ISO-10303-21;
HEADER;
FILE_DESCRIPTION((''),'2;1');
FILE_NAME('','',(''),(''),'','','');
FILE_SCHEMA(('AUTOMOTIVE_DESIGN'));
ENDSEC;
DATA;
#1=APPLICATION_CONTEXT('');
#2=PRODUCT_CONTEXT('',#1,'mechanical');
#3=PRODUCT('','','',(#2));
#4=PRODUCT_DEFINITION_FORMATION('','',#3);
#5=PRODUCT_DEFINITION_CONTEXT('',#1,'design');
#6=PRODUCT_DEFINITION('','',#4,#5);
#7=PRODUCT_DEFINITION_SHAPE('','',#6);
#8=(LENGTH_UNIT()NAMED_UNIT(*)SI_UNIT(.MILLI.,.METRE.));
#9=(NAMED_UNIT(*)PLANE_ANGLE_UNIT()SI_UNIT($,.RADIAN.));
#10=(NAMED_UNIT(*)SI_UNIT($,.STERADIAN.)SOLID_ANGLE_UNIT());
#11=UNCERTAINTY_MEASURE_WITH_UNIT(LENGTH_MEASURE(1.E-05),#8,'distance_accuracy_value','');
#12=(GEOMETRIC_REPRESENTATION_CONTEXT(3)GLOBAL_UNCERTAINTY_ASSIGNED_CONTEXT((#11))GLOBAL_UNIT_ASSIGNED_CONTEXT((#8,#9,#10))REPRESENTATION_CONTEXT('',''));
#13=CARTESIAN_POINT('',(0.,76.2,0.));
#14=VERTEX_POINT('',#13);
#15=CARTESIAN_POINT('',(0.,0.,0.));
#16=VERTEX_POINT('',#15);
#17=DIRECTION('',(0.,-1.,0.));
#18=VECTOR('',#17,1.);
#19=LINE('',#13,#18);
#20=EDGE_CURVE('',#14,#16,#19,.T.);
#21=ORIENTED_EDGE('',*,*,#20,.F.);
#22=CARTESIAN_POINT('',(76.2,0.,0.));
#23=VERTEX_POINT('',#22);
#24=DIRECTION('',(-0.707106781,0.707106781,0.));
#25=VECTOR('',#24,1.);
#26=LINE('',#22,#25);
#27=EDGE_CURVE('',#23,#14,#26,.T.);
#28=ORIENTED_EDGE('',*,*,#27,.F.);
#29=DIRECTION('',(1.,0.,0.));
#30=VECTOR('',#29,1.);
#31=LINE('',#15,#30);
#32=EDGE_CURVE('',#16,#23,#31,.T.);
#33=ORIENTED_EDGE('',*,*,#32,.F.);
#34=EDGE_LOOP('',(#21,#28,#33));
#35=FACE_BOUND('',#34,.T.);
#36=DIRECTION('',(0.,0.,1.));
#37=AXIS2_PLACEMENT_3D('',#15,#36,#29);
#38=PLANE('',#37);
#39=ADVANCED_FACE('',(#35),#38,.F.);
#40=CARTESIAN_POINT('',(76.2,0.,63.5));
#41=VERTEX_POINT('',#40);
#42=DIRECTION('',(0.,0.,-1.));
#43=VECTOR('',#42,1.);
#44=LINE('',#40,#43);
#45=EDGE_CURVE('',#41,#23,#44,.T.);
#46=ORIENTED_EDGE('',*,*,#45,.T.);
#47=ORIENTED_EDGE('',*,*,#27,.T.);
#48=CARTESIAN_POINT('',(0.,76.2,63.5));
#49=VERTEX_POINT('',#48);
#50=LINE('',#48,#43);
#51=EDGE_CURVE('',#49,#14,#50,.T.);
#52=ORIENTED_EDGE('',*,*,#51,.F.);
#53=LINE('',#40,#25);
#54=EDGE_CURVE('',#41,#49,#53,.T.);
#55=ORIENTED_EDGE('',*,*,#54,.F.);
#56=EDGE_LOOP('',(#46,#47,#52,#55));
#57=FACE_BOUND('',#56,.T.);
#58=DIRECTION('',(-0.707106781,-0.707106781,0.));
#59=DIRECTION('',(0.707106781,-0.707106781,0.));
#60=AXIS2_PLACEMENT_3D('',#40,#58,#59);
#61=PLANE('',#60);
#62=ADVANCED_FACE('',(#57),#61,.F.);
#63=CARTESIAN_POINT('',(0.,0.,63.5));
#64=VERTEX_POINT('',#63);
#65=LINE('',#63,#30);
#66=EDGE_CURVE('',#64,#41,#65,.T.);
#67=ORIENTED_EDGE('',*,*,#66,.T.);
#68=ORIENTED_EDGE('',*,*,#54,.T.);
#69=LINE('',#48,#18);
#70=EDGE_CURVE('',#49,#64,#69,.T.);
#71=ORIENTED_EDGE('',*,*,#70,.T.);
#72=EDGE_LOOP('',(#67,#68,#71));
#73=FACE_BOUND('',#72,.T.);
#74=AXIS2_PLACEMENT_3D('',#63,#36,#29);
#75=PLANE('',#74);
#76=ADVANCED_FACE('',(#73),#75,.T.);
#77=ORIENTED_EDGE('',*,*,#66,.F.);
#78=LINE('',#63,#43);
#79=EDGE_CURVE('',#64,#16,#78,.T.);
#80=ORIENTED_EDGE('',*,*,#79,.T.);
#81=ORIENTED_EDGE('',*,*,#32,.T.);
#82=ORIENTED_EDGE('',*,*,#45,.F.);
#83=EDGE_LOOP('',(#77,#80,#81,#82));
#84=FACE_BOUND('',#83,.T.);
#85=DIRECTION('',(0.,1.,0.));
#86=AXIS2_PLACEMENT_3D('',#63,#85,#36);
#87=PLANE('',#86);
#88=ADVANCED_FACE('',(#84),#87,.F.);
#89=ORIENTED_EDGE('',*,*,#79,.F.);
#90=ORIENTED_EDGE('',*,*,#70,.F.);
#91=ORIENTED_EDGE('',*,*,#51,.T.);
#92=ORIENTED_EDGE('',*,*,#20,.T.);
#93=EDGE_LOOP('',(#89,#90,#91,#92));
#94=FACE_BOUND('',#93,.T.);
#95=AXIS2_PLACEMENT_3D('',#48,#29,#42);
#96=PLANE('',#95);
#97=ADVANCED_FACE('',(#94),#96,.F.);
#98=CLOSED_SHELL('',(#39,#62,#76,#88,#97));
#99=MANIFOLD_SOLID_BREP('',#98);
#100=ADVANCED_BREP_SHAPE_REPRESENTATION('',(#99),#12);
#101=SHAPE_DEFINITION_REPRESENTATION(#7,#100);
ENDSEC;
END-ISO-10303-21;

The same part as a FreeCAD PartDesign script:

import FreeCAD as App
import Part
import Sketcher
from FreeCAD import Vector
Q = App.Units.Quantity

doc = App.newDocument("Part")
body = doc.addObject("PartDesign::Body", "Body")

# Sketch on XY plane
sketch1 = doc.addObject("Sketcher::SketchObject", "Sketch")
body.addObject(sketch1)
sketch1.AttachmentSupport = (doc.XY_Plane, [""])
sketch1.MapMode = "FlatFace"
sketch1.addGeometry([
    Part.LineSegment(Vector(0, 0, 0), Vector(76, 0, 0)),
    Part.LineSegment(Vector(76, 0, 0), Vector(0, 76, 0)),
    Part.LineSegment(Vector(0, 76, 0), Vector(0, 0, 0)),
], False)
sketch1.addConstraint([
    Sketcher.Constraint("Coincident", 0, 2, 1, 1),
    Sketcher.Constraint("Coincident", 1, 2, 2, 1),
    Sketcher.Constraint("Coincident", 2, 2, 0, 1),
    Sketcher.Constraint("Horizontal", 0),
    Sketcher.Constraint("Vertical", 2),
    Sketcher.Constraint("Coincident", 2, 2, -1, 1),
    Sketcher.Constraint("Equal", 0, 2),
    Sketcher.Constraint("DistanceX", 0, 1, 0, 2, Q("3 in")),
])
pad1 = doc.addObject("PartDesign::Pad", "Pad")
body.addObject(pad1)
pad1.Profile = sketch1
pad1.Length = Q("2.5 in")

doc.recompute()
